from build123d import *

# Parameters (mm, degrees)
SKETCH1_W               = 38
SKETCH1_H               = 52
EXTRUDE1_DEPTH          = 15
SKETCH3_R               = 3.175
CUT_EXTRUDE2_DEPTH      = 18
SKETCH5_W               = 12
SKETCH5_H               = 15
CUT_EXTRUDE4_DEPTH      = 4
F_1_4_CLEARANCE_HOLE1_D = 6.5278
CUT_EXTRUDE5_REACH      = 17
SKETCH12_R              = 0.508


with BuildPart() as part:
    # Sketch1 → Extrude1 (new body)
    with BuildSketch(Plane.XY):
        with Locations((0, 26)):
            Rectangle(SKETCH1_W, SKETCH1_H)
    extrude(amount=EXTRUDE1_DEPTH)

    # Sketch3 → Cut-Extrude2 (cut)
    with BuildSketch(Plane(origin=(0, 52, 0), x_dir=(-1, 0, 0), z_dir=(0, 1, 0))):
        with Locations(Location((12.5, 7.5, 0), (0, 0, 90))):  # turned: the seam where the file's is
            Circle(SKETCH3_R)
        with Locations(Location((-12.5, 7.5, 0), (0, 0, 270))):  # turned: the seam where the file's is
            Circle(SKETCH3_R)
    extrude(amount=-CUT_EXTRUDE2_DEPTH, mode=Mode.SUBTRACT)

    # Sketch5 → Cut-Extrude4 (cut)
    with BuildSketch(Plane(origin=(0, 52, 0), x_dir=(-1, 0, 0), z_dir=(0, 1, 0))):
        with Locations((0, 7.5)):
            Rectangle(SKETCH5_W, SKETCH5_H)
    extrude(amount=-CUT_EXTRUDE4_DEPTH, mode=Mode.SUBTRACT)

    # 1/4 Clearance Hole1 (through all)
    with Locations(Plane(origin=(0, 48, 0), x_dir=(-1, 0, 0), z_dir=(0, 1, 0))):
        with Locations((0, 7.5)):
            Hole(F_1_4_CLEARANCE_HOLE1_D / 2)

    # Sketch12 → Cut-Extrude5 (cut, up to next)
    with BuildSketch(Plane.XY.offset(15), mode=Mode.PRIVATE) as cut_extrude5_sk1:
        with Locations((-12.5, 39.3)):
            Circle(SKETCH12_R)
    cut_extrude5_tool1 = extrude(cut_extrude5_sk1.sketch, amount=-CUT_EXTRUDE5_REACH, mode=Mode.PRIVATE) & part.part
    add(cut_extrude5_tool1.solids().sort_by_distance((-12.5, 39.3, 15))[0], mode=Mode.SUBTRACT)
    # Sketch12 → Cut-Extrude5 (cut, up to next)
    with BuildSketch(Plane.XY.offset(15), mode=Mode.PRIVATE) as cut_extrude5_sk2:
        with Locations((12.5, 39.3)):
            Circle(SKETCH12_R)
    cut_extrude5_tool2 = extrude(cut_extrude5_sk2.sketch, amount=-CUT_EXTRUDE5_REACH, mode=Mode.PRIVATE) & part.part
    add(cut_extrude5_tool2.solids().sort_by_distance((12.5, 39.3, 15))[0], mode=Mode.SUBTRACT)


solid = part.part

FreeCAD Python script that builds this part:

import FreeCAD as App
import Part
import Sketcher
Q = App.Units.Quantity


def add_polygon(sketch, points):
    """Adds a closed chain of lines whose ends are joined by coincident constraints."""
    first, n = sketch.GeometryCount, len(points)
    for a, b in zip(points, points[1:] + points[:1]):
        sketch.addGeometry(Part.LineSegment(App.Vector(*a, 0), App.Vector(*b, 0)), False)
    for i in range(n):
        sketch.addConstraint(Sketcher.Constraint("Coincident", first + i, 2, first + (i + 1) % n, 1))

doc = App.newDocument("Part")
body = doc.addObject("PartDesign::Body", "Body")

sketch1 = body.newObject("Sketcher::SketchObject", "Sketch")
sketch1.AttachmentSupport = (doc.getObject("XY_Plane"), [""])
sketch1.MapMode = "FlatFace"
add_polygon(sketch1, [(-19, 52), (-19, 0), (19, 0), (19, 52)])
sketch1.addConstraint([
    Sketcher.Constraint("Vertical", 0),
    Sketcher.Constraint("Horizontal", 1),
    Sketcher.Constraint("Vertical", 2),
    Sketcher.Constraint("Horizontal", 3),
    Sketcher.Constraint("Symmetric", 0, 2, 1, 2, -1, 1),
    Sketcher.Constraint("DistanceX", 1, 1, 1, 2, Q("38 mm")),
    Sketcher.Constraint("DistanceY", 0, 2, 0, 1, Q("52 mm")),
])
pad1 = body.newObject("PartDesign::Pad", "Pad")
pad1.Profile = sketch1
pad1.Length = 15

sketch2 = body.newObject("Sketcher::SketchObject", "Sketch001")
sketch2.AttachmentSupport = (doc.getObject("XZ_Plane"), [""])
sketch2.MapMode = "FlatFace"
sketch2.AttachmentOffset = App.Placement(App.Vector(0, 0, -52), App.Rotation())
sketch2.addGeometry([
    Part.Circle(App.Vector(-12.5, 7.5, 0), App.Vector(0, 0, 1), 3.2),
    Part.Circle(App.Vector(12.5, 7.5, 0), App.Vector(0, 0, 1), 3.2),
], False)
sketch2.addConstraint([
    Sketcher.Constraint("Equal", 0, 1),
    Sketcher.Constraint("Symmetric", 0, 3, 1, 3, -2),
    Sketcher.Constraint("Diameter", 0, Q("6.35 mm")),
    Sketcher.Constraint("DistanceX", 0, 3, 1, 3, Q("25 mm")),
    Sketcher.Constraint("DistanceY", -1, 1, 0, 3, Q("7.5 mm")),
])
pocket1 = body.newObject("PartDesign::Pocket", "Pocket")
pocket1.Profile = sketch2
pocket1.Length = 18
pocket1.Reversed = True

sketch3 = body.newObject("Sketcher::SketchObject", "Sketch002")
sketch3.AttachmentSupport = (doc.getObject("XZ_Plane"), [""])
sketch3.MapMode = "FlatFace"
sketch3.AttachmentOffset = App.Placement(App.Vector(0, 0, -52), App.Rotation())
add_polygon(sketch3, [(6, 15), (6, 0), (-6, 0), (-6, 15)])
sketch3.addConstraint([
    Sketcher.Constraint("Vertical", 0),
    Sketcher.Constraint("Horizontal", 1),
    Sketcher.Constraint("Vertical", 2),
    Sketcher.Constraint("Horizontal", 3),
    Sketcher.Constraint("Symmetric", 0, 2, 1, 2, -1, 1),
    Sketcher.Constraint("DistanceX", 1, 2, 1, 1, Q("12 mm")),
    Sketcher.Constraint("DistanceY", 0, 2, 0, 1, Q("15 mm")),
])
pocket2 = body.newObject("PartDesign::Pocket", "Pocket001")
pocket2.Profile = sketch3
pocket2.Length = 4
pocket2.Reversed = True

sketch4 = body.newObject("Sketcher::SketchObject", "Sketch003")
sketch4.AttachmentSupport = (doc.getObject("XZ_Plane"), [""])
sketch4.MapMode = "FlatFace"
sketch4.AttachmentOffset = App.Placement(App.Vector(0, 0, -48), App.Rotation())
sketch4.addGeometry(Part.Circle(App.Vector(0, 7.5, 0), App.Vector(0, 0, 1), 3.3), False)
sketch4.addConstraint([
    Sketcher.Constraint("PointOnObject", 0, 3, -2),
    Sketcher.Constraint("Diameter", 0, Q("6.5278 mm")),
    Sketcher.Constraint("DistanceY", -1, 1, 0, 3, Q("7.5 mm")),
])
doc.recompute()
hole = body.newObject("PartDesign::Hole", "Hole")
hole.Profile = sketch4
hole.ThreadType = "None"
hole.Diameter = 6.5278
hole.DepthType = "ThroughAll"
hole.Reversed = True

sketch5 = body.newObject("Sketcher::SketchObject", "Sketch004")
sketch5.AttachmentSupport = (doc.getObject("XY_Plane"), [""])
sketch5.MapMode = "FlatFace"
sketch5.AttachmentOffset = App.Placement(App.Vector(0, 0, 15), App.Rotation())
sketch5.addGeometry(Part.Circle(App.Vector(-12.5, 39.3, 0), App.Vector(0, 0, 1), 0.5), False)
sketch5.addConstraint([
    Sketcher.Constraint("Diameter", 0, Q("1.016 mm")),
    Sketcher.Constraint("DistanceX", 0, 3, -1, 1, Q("12.5 mm")),
    Sketcher.Constraint("DistanceY", -1, 1, 0, 3, Q("39.3 mm")),
])
pocket3 = body.newObject("PartDesign::Pocket", "Pocket002")
pocket3.Profile = sketch5
pocket3.Type = "UpToFirst"

sketch6 = body.newObject("Sketcher::SketchObject", "Sketch005")
sketch6.AttachmentSupport = (doc.getObject("XY_Plane"), [""])
sketch6.MapMode = "FlatFace"
sketch6.AttachmentOffset = App.Placement(App.Vector(0, 0, 15), App.Rotation())
sketch6.addGeometry(Part.Circle(App.Vector(12.5, 39.3, 0), App.Vector(0, 0, 1), 0.5), False)
sketch6.addConstraint([
    Sketcher.Constraint("Diameter", 0, Q("1.016 mm")),
    Sketcher.Constraint("DistanceX", -1, 1, 0, 3, Q("12.5 mm")),
    Sketcher.Constraint("DistanceY", -1, 1, 0, 3, Q("39.3 mm")),
])
pocket4 = body.newObject("PartDesign::Pocket", "Pocket003")
pocket4.Profile = sketch6
pocket4.Type = "UpToFirst"

doc.recompute()
